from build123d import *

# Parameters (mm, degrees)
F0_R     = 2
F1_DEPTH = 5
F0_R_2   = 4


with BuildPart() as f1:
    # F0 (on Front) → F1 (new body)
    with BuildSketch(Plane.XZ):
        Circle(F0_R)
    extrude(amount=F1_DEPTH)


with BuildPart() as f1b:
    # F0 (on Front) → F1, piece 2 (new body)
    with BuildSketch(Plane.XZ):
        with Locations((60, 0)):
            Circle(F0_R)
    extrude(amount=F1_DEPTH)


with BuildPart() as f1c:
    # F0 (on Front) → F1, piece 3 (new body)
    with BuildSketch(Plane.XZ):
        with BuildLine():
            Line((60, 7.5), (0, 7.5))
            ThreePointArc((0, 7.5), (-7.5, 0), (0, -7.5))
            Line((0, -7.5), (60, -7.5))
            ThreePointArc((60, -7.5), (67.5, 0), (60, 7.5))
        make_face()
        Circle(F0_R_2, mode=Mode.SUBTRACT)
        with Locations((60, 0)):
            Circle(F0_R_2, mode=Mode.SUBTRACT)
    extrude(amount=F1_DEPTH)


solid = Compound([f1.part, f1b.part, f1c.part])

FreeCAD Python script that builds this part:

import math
import FreeCAD as App
import Part
import Sketcher
from FreeCAD import Vector

doc = App.newDocument("Part")
body = doc.addObject("PartDesign::Body", "Body")

# Sketch on XZ plane
sketch1 = doc.addObject("Sketcher::SketchObject", "Sketch")
body.addObject(sketch1)
sketch1.AttachmentSupport = (doc.XZ_Plane, [""])
sketch1.MapMode = "FlatFace"
sketch1.addGeometry(Part.Circle(Vector(0, 0, 0), Vector(0, 0, 1), 2), False)
sketch1.addConstraint([
    Sketcher.Constraint("Coincident", 0, 3, -1, 1),
    Sketcher.Constraint("Diameter", 0, 4.0),
])
pad1 = doc.addObject("PartDesign::Pad", "Pad")
body.addObject(pad1)
pad1.Profile = sketch1
pad1.Length = 5
body2 = doc.addObject("PartDesign::Body", "Body001")

# Sketch on XZ plane
sketch2 = doc.addObject("Sketcher::SketchObject", "Sketch001")
body2.addObject(sketch2)
sketch2.AttachmentSupport = (doc.getObject("XZ_Plane001"), [""])
sketch2.MapMode = "FlatFace"
sketch2.addGeometry(Part.Circle(Vector(60, 0, 0), Vector(0, 0, 1), 2), False)
sketch2.addConstraint([
    Sketcher.Constraint("PointOnObject", 0, 3, -1),
    Sketcher.Constraint("Diameter", 0, 4.0),
    Sketcher.Constraint("DistanceX", -1, 1, 0, 3, 60.0),
])
pad2 = doc.addObject("PartDesign::Pad", "Pad001")
body2.addObject(pad2)
pad2.Profile = sketch2
pad2.Length = 5
body3 = doc.addObject("PartDesign::Body", "Body002")

# Sketch on XZ plane
sketch3 = doc.addObject("Sketcher::SketchObject", "Sketch002")
body3.addObject(sketch3)
sketch3.AttachmentSupport = (doc.getObject("XZ_Plane002"), [""])
sketch3.MapMode = "FlatFace"
sketch3.addGeometry([
    Part.LineSegment(Vector(60, 7.5, 0), Vector(0, 7.5, 0)),  # 0
    Part.ArcOfCircle(Part.Circle(Vector(0, 0, 0), Vector(0, 0, 1), 7.5), math.radians(90), math.radians(270)),  # 1
    Part.LineSegment(Vector(0, -7.5, 0), Vector(60, -7.5, 0)),  # 2
    Part.ArcOfCircle(Part.Circle(Vector(60, 0, 0), Vector(0, 0, 1), 7.5), math.radians(-90), math.radians(90)),  # 3
    Part.Circle(Vector(0, 0, 0), Vector(0, 0, 1), 4),  # 4
    Part.Circle(Vector(60, 0, 0), Vector(0, 0, 1), 4),  # 5
], False)
sketch3.addConstraint([
    Sketcher.Constraint("Tangent", 0, 2, 1, 1),
    Sketcher.Constraint("Tangent", 1, 2, 2, 1),
    Sketcher.Constraint("Tangent", 2, 2, 3, 1),
    Sketcher.Constraint("Tangent", 3, 2, 0, 1),
    Sketcher.Constraint("Horizontal", 0),
    Sketcher.Constraint("Horizontal", 2),
    Sketcher.Constraint("Coincident", 1, 3, -1, 1),
    Sketcher.Constraint("Coincident", 4, 3, -1, 1),
    Sketcher.Constraint("Coincident", 5, 3, 3, 3),
    Sketcher.Constraint("Equal", 4, 5),
    Sketcher.Constraint("Diameter", 4, 8.0),
    Sketcher.Constraint("Radius", 1, 7.5),
    Sketcher.Constraint("DistanceX", 0, 2, 0, 1, 60.0),
])
pad3 = doc.addObject("PartDesign::Pad", "Pad002")
body3.addObject(pad3)
pad3.Profile = sketch3
pad3.Length = 5

doc.recompute()
